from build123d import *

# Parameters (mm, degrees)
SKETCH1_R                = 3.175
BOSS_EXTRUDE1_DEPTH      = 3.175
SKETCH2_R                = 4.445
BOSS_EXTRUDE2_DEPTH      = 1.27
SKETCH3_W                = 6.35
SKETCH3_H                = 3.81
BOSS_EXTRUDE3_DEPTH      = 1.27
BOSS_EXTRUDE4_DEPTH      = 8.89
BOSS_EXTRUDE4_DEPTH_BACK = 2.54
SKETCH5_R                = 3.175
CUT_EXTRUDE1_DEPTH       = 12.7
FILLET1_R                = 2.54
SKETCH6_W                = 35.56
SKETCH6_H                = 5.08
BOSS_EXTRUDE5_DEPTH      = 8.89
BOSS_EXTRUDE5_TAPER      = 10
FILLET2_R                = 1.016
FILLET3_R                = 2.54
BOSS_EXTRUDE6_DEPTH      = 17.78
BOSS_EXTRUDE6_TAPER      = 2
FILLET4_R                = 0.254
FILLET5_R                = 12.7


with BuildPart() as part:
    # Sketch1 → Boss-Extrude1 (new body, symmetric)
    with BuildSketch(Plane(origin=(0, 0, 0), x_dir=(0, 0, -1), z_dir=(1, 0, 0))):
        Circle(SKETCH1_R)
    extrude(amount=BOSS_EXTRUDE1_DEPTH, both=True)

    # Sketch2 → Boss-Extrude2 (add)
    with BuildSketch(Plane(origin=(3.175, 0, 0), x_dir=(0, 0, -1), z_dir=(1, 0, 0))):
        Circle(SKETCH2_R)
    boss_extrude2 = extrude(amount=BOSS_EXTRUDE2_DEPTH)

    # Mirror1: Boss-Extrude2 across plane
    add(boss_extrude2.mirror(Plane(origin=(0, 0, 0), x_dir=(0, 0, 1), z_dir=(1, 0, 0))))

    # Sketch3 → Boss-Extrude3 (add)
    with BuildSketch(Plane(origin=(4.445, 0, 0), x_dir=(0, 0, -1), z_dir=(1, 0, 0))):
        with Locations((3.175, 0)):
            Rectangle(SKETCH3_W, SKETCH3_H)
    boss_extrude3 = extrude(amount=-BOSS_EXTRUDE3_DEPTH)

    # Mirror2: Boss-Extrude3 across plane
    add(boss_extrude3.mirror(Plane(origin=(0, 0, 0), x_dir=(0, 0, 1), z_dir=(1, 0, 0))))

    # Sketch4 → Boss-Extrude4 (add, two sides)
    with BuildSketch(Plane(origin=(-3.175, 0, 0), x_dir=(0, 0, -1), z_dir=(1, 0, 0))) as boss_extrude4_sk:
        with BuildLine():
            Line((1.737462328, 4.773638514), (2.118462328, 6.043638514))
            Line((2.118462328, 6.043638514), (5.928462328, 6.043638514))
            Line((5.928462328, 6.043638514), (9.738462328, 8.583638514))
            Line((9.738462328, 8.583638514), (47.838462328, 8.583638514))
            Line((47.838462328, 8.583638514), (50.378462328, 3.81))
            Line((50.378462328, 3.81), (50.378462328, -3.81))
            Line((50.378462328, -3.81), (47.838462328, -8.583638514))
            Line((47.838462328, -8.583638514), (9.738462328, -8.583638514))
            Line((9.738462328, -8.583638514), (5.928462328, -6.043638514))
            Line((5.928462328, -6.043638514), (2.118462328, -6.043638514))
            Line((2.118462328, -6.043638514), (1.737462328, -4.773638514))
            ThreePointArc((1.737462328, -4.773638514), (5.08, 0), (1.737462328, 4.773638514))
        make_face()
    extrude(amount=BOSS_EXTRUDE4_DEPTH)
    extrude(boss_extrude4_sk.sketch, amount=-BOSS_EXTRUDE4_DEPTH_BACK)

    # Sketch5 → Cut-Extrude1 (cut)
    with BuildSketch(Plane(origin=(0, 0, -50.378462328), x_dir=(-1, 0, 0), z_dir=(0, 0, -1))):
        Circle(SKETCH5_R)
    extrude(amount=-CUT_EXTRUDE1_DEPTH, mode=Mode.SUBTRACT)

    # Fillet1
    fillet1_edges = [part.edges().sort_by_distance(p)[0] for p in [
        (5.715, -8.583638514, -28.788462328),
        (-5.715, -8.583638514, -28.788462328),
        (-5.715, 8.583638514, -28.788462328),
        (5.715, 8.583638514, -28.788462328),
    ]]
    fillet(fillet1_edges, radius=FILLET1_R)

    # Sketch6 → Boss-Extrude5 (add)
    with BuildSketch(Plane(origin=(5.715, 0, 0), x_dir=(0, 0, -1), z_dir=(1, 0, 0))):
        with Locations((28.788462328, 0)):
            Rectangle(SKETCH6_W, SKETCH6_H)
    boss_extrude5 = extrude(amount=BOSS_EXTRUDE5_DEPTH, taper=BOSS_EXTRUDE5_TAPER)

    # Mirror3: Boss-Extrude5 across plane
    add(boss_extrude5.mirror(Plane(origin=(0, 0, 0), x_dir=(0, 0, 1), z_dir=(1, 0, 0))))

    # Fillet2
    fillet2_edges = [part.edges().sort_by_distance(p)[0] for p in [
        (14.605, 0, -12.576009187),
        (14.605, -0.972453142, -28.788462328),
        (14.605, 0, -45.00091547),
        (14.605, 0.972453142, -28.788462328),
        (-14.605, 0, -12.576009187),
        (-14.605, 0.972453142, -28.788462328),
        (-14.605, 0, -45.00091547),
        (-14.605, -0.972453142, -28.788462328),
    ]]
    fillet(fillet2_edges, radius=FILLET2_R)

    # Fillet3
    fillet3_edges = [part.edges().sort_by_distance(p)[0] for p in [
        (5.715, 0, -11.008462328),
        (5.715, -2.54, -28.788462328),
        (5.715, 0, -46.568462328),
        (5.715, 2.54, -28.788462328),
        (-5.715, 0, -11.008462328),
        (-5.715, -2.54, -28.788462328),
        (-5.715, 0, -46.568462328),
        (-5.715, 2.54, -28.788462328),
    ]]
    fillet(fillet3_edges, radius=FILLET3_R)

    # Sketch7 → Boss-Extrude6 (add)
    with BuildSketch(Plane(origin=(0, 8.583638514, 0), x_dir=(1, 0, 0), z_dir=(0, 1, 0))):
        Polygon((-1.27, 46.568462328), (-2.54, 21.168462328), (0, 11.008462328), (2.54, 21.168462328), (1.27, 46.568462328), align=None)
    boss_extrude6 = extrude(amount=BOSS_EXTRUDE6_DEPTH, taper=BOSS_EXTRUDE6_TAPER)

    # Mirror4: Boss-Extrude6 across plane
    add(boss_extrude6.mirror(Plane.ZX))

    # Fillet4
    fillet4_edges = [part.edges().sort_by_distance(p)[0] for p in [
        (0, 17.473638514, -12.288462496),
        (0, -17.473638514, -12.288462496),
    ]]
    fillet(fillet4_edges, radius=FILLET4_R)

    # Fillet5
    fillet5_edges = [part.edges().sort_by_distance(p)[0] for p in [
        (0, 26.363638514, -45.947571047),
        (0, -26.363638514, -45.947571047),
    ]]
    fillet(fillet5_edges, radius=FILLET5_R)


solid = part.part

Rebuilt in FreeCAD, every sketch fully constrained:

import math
import FreeCAD as App
import Part
import Sketcher
Q = App.Units.Quantity


def edges_at(feature, points):
    """Names of the edges that pass closest to the given points."""
    edges = feature.Shape.Edges
    near = lambda p: min(range(len(edges)), key=lambda i: edges[i].distToShape(Part.Vertex(*p))[0])
    return sorted({f"Edge{near(p) + 1}" for p in points})

doc = App.newDocument("Part")
params = doc.addObject("Spreadsheet::Sheet", "Params")
for row, (alias, value) in enumerate([
    ("sketch1_diameter", "0.25 in"),
    ("pad1_length", "0.25 in"),
    ("sketch2_diameter", "0.35 in"),
    ("pad2_length", "0.05 in"),
    ("sketch3_width", "0.15 in"),
    ("sketch3_height", "0.25 in"),
    ("pad3_length", "0.05 in"),
    ("sketch4_radius", "0.2 in"),
    ("sketch4_width", "0.3 in"),
    ("sketch4_height", "1.5 in"),
    ("sketch4_height2", "0.15 in"),
    ("pad4_length", "0.35 in"),
    ("pad4_length2", "0.1 in"),
    ("sketch5_diameter", "0.25 in"),
    ("pocket1_length", "0.5 in"),
    ("fillet_radius", "0.1 in"),
    ("sketch6_width", "0.2 in"),
    ("sketch6_height", "1.4 in"),
    ("pad5_length", "0.35 in"),
    ("pad5_taper", "-10 deg"),
    ("fillet2_radius", "0.04 in"),
    ("fillet3_radius", "0.1 in"),
    ("sketch7_width", "0.1 in"),
    ("pad6_length", "0.7 in"),
    ("pad6_taper", "-2 deg"),
    ("fillet4_radius", "0.01 in"),
    ("fillet5_radius", "0.5 in"),
], start=1):
    params.set(f"A{row}", alias)
    params.set(f"B{row}", "=" + value)
    params.setAlias(f"B{row}", alias)

body = doc.addObject("PartDesign::Body", "Body")

# Sketch on YZ plane
sketch1 = doc.addObject("Sketcher::SketchObject", "Sketch")
body.addObject(sketch1)
sketch1.AttachmentSupport = (doc.YZ_Plane, [""])
sketch1.MapMode = "FlatFace"
sketch1.addGeometry(Part.Circle(App.Vector(0, 0, 0), App.Vector(0, 0, 1), 3.2), False)
sketch1.addConstraint([
    Sketcher.Constraint("Coincident", 0, 3, -1, 1),
    Sketcher.Constraint("Diameter", 0, Q("0.25 in")),
])
sketch1.setExpression("Constraints[1]", "Params.sketch1_diameter")
pad1 = doc.addObject("PartDesign::Pad", "Pad")
body.addObject(pad1)
pad1.Profile = sketch1
pad1.setExpression("Length", "Params.pad1_length")
pad1.Midplane = True

# Sketch on YZ plane
sketch2 = doc.addObject("Sketcher::SketchObject", "Sketch001")
body.addObject(sketch2)
sketch2.AttachmentSupport = (doc.YZ_Plane, [""])
sketch2.MapMode = "FlatFace"
sketch2.AttachmentOffset = App.Placement(App.Vector(0, 0, 0.125 * 25.4), App.Rotation())
sketch2.addGeometry(Part.Circle(App.Vector(0, 0, 0), App.Vector(0, 0, 1), 4.4), False)
sketch2.addConstraint([
    Sketcher.Constraint("Coincident", 0, 3, -1, 1),
    Sketcher.Constraint("Diameter", 0, Q("0.35 in")),
])
sketch2.setExpression("Constraints[1]", "Params.sketch2_diameter")
pad2 = doc.addObject("PartDesign::Pad", "Pad001")
body.addObject(pad2)
pad2.Profile = sketch2
pad2.setExpression("Length", "Params.pad2_length")
doc.recompute()

mirrored = doc.addObject("PartDesign::Mirrored", "Mirrored")
body.addObject(mirrored)
mirrored.Originals = [pad2]
mirrored.MirrorPlane = (doc.YZ_Plane, [""])
body.Tip = mirrored

# Sketch on YZ plane
sketch3 = doc.addObject("Sketcher::SketchObject", "Sketch002")
body.addObject(sketch3)
sketch3.AttachmentSupport = (doc.YZ_Plane, [""])
sketch3.MapMode = "FlatFace"
sketch3.AttachmentOffset = App.Placement(App.Vector(0, 0, 0.175 * 25.4), App.Rotation())
sketch3.addGeometry([
    Part.LineSegment(App.Vector(1.9, 0, 0), App.Vector(-1.9, 0, 0)),
    Part.LineSegment(App.Vector(-1.9, 0, 0), App.Vector(-1.9, -6.3, 0)),
    Part.LineSegment(App.Vector(-1.9, -6.3, 0), App.Vector(1.9, -6.3, 0)),
    Part.LineSegment(App.Vector(1.9, -6.3, 0), App.Vector(1.9, 0, 0)),
], False)
sketch3.addConstraint([
    Sketcher.Constraint("Coincident", 0, 2, 1, 1),
    Sketcher.Constraint("Coincident", 1, 2, 2, 1),
    Sketcher.Constraint("Coincident", 2, 2, 3, 1),
    Sketcher.Constraint("Coincident", 3, 2, 0, 1),
    Sketcher.Constraint("Horizontal", 0),
    Sketcher.Constraint("Vertical", 1),
    Sketcher.Constraint("Horizontal", 2),
    Sketcher.Constraint("Vertical", 3),
    Sketcher.Constraint("Symmetric", 0, 2, 3, 2, -1, 1),
    Sketcher.Constraint("DistanceX", 0, 2, 0, 1, Q("0.15 in")),
    Sketcher.Constraint("DistanceY", 1, 2, 1, 1, Q("0.25 in")),
])
sketch3.setExpression("Constraints[9]", "Params.sketch3_width")
sketch3.setExpression("Constraints[10]", "Params.sketch3_height")
pad3 = doc.addObject("PartDesign::Pad", "Pad002")
body.addObject(pad3)
pad3.Profile = sketch3
pad3.setExpression("Length", "Params.pad3_length")
pad3.Reversed = True
doc.recompute()

mirrored2 = doc.addObject("PartDesign::Mirrored", "Mirrored001")
body.addObject(mirrored2)
mirrored2.Originals = [pad3]
mirrored2.MirrorPlane = (doc.YZ_Plane, [""])
body.Tip = mirrored2

# Sketch on YZ plane
sketch4 = doc.addObject("Sketcher::SketchObject", "Sketch003")
body.addObject(sketch4)
sketch4.AttachmentSupport = (doc.YZ_Plane, [""])
sketch4.MapMode = "FlatFace"
sketch4.AttachmentOffset = App.Placement(App.Vector(0, 0, -0.125 * 25.4), App.Rotation())
sketch4.addGeometry([
    Part.LineSegment(App.Vector(6, -2.1, 0), App.Vector(4.8, -1.7, 0)),  # 0
    Part.ArcOfCircle(Part.Circle(App.Vector(0, 0, 0), App.Vector(0, 0, 1), 5.1), math.radians(-160), math.radians(-20)),  # 1
    Part.LineSegment(App.Vector(-4.8, -1.7, 0), App.Vector(-6, -2.1, 0)),  # 2
    Part.LineSegment(App.Vector(-6, -2.1, 0), App.Vector(-6, -5.9, 0)),  # 3
    Part.LineSegment(App.Vector(-6, -5.9, 0), App.Vector(-8.6, -9.7, 0)),  # 4
    Part.LineSegment(App.Vector(-8.6, -9.7, 0), App.Vector(-8.6, -47.8, 0)),  # 5
    Part.LineSegment(App.Vector(-8.6, -47.8, 0), App.Vector(-3.8, -50.4, 0)),  # 6
    Part.LineSegment(App.Vector(-3.8, -50.4, 0), App.Vector(3.8, -50.4, 0)),  # 7
    Part.LineSegment(App.Vector(3.8, -50.4, 0), App.Vector(8.6, -47.8, 0)),  # 8
    Part.LineSegment(App.Vector(8.6, -47.8, 0), App.Vector(8.6, -9.7, 0)),  # 9
    Part.LineSegment(App.Vector(8.6, -9.7, 0), App.Vector(6, -5.9, 0)),  # 10
    Part.LineSegment(App.Vector(6, -5.9, 0), App.Vector(6, -2.1, 0)),  # 11
], False)
sketch4.addConstraint([
    Sketcher.Constraint("Coincident", 0, 2, 1, 2),
    Sketcher.Constraint("Coincident", 1, 1, 2, 1),
    Sketcher.Constraint("Coincident", 2, 2, 3, 1),
    Sketcher.Constraint("Coincident", 3, 2, 4, 1),
    Sketcher.Constraint("Coincident", 4, 2, 5, 1),
    Sketcher.Constraint("Coincident", 5, 2, 6, 1),
    Sketcher.Constraint("Coincident", 6, 2, 7, 1),
    Sketcher.Constraint("Coincident", 7, 2, 8, 1),
    Sketcher.Constraint("Coincident", 8, 2, 9, 1),
    Sketcher.Constraint("Coincident", 9, 2, 10, 1),
    Sketcher.Constraint("Coincident", 10, 2, 11, 1),
    Sketcher.Constraint("Coincident", 11, 2, 0, 1),
    Sketcher.Constraint("Vertical", 3),
    Sketcher.Constraint("Vertical", 5),
    Sketcher.Constraint("Horizontal", 7),
    Sketcher.Constraint("Vertical", 9),
    Sketcher.Constraint("Vertical", 11),
    Sketcher.Constraint("Coincident", 1, 3, -1, 1),
    Sketcher.Constraint("Symmetric", 5, 2, 8, 2, -2),
    Sketcher.Constraint("Symmetric", 3, 2, 10, 2, -2),
    Sketcher.Constraint("Horizontal", 0, 2, 1, 1),
    Sketcher.Constraint("Horizontal", 4, 2, 9, 2),
    Sketcher.Constraint("Horizontal", 2, 2, 11, 2),
    Sketcher.Constraint("Equal", 6, 8),
    Sketcher.Constraint("Radius", 1, Q("0.2 in")),
    Sketcher.Constraint("DistanceX", 7, 1, 7, 2, Q("0.3 in")),
    Sketcher.Constraint("DistanceY", 5, 2, 5, 1, Q("1.5 in")),
    Sketcher.Constraint("DistanceY", 3, 2, 3, 1, Q("0.15 in")),
    Sketcher.Constraint("DistanceX", 4, 2, 3, 2, Q("0.1 in")),
    Sketcher.Constraint("DistanceY", 4, 2, 2, 2, Q("0.3 in")),
    Sketcher.Constraint("DistanceY", 6, 2, 5, 2, Q("0.1 in")),
    Sketcher.Constraint("DistanceX", 2, 2, 1, 1, Q("0.05 in")),
    Sketcher.Constraint("DistanceY", 2, 2, 1, 1, Q("0.015 in")),
    Sketcher.Constraint("Distance", 6, Q("5.407331 mm")),
])
sketch4.setExpression("Constraints[24]", "Params.sketch4_radius")
sketch4.setExpression("Constraints[25]", "Params.sketch4_width")
sketch4.setExpression("Constraints[26]", "Params.sketch4_height")
sketch4.setExpression("Constraints[27]", "Params.sketch4_height2")
pad4 = doc.addObject("PartDesign::Pad", "Pad003")
body.addObject(pad4)
pad4.Profile = sketch4
pad4.Type = "TwoLengths"
pad4.setExpression("Length", "Params.pad4_length")
pad4.setExpression("Length2", "Params.pad4_length2")

# Sketch on XY plane
sketch5 = doc.addObject("Sketcher::SketchObject", "Sketch004")
body.addObject(sketch5)
sketch5.AttachmentSupport = (doc.XY_Plane, [""])
sketch5.MapMode = "FlatFace"
sketch5.AttachmentOffset = App.Placement(App.Vector(0, 0, -50.378462), App.Rotation())
sketch5.addGeometry(Part.Circle(App.Vector(0, 0, 0), App.Vector(0, 0, 1), 3.2), False)
sketch5.addConstraint([
    Sketcher.Constraint("Coincident", 0, 3, -1, 1),
    Sketcher.Constraint("Diameter", 0, Q("0.25 in")),
])
sketch5.setExpression("Constraints[1]", "Params.sketch5_diameter")
pocket1 = doc.addObject("PartDesign::Pocket", "Pocket")
body.addObject(pocket1)
pocket1.Profile = sketch5
pocket1.setExpression("Length", "Params.pocket1_length")
pocket1.Reversed = True
doc.recompute()

fillet = doc.addObject("PartDesign::Fillet", "Fillet")
body.addObject(fillet)
fillet.Base = (pocket1, edges_at(pocket1, [
    (5.715, -8.584, -28.788),
    (-5.715, -8.584, -28.788),
    (-5.715, 8.584, -28.788),
    (5.715, 8.584, -28.788),
]))
fillet.setExpression("Radius", "Params.fillet_radius")

# Sketch on YZ plane
sketch6 = doc.addObject("Sketcher::SketchObject", "Sketch005")
body.addObject(sketch6)
sketch6.AttachmentSupport = (doc.YZ_Plane, [""])
sketch6.MapMode = "FlatFace"
sketch6.AttachmentOffset = App.Placement(App.Vector(0, 0, 0.225 * 25.4), App.Rotation())
sketch6.addGeometry([
    Part.LineSegment(App.Vector(3, -11, 0), App.Vector(-3, -11, 0)),
    Part.LineSegment(App.Vector(-3, -11, 0), App.Vector(-3, -47, 0)),
    Part.LineSegment(App.Vector(-3, -47, 0), App.Vector(3, -47, 0)),
    Part.LineSegment(App.Vector(3, -47, 0), App.Vector(3, -11, 0)),
], False)
sketch6.addConstraint([
    Sketcher.Constraint("Coincident", 0, 2, 1, 1),
    Sketcher.Constraint("Coincident", 1, 2, 2, 1),
    Sketcher.Constraint("Coincident", 2, 2, 3, 1),
    Sketcher.Constraint("Coincident", 3, 2, 0, 1),
    Sketcher.Constraint("Horizontal", 0),
    Sketcher.Constraint("Vertical", 1),
    Sketcher.Constraint("Horizontal", 2),
    Sketcher.Constraint("Vertical", 3),
    Sketcher.Constraint("DistanceX", 0, 2, 0, 1, Q("0.2 in")),
    Sketcher.Constraint("DistanceY", 1, 2, 1, 1, Q("1.4 in")),
    Sketcher.Constraint("DistanceX", 0, 2, -1, 1, Q("0.1 in")),
    Sketcher.Constraint("DistanceY", 0, 2, -1, 1, Q("11.008462 mm")),
])
sketch6.setExpression("Constraints[8]", "Params.sketch6_width")
sketch6.setExpression("Constraints[9]", "Params.sketch6_height")
pad5 = doc.addObject("PartDesign::Pad", "Pad004")
body.addObject(pad5)
pad5.Profile = sketch6
pad5.setExpression("Length", "Params.pad5_length")
pad5.setExpression("TaperAngle", "Params.pad5_taper")
doc.recompute()

mirrored3 = doc.addObject("PartDesign::Mirrored", "Mirrored002")
body.addObject(mirrored3)
mirrored3.Originals = [pad5]
mirrored3.MirrorPlane = (doc.YZ_Plane, [""])
body.Tip = mirrored3
doc.recompute()

fillet2 = doc.addObject("PartDesign::Fillet", "Fillet001")
body.addObject(fillet2)
fillet2.Base = (mirrored3, edges_at(mirrored3, [
    (14.605, 0, -12.576),
    (14.605, -0.972, -28.788),
    (14.605, 0, -45.001),
    (14.605, 0.972, -28.788),
    (-14.605, 0, -12.576),
    (-14.605, 0.972, -28.788),
    (-14.605, 0, -45.001),
    (-14.605, -0.972, -28.788),
]))
fillet2.setExpression("Radius", "Params.fillet2_radius")
doc.recompute()

fillet3 = doc.addObject("PartDesign::Fillet", "Fillet002")
body.addObject(fillet3)
fillet3.Base = (fillet2, edges_at(fillet2, [
    (5.715, 0, -11.008),
    (5.715, -2.54, -28.788),
    (5.715, 0, -46.568),
    (5.715, 2.54, -28.788),
    (-5.715, 0, -11.008),
    (-5.715, -2.54, -28.788),
    (-5.715, 0, -46.568),
    (-5.715, 2.54, -28.788),
]))
fillet3.setExpression("Radius", "Params.fillet3_radius")

# Sketch on XZ plane
sketch7 = doc.addObject("Sketcher::SketchObject", "Sketch006")
body.addObject(sketch7)
sketch7.AttachmentSupport = (doc.XZ_Plane, [""])
sketch7.MapMode = "FlatFace"
sketch7.AttachmentOffset = App.Placement(App.Vector(0, 0, -8.583639), App.Rotation())
sketch7.addGeometry([
    Part.LineSegment(App.Vector(-1.3, -46.6, 0), App.Vector(-2.5, -21.2, 0)),  # 0
    Part.LineSegment(App.Vector(-2.5, -21.2, 0), App.Vector(0, -11, 0)),  # 1
    Part.LineSegment(App.Vector(0, -11, 0), App.Vector(2.5, -21.2, 0)),  # 2
    Part.LineSegment(App.Vector(2.5, -21.2, 0), App.Vector(1.3, -46.6, 0)),  # 3
    Part.LineSegment(App.Vector(1.3, -46.6, 0), App.Vector(-1.3, -46.6, 0)),  # 4
], False)
sketch7.addConstraint([
    Sketcher.Constraint("Coincident", 0, 2, 1, 1),
    Sketcher.Constraint("Coincident", 1, 2, 2, 1),
    Sketcher.Constraint("Coincident", 2, 2, 3, 1),
    Sketcher.Constraint("Coincident", 3, 2, 4, 1),
    Sketcher.Constraint("Coincident", 4, 2, 0, 1),
    Sketcher.Constraint("Horizontal", 4),
    Sketcher.Constraint("Symmetric", 0, 2, 2, 2, -2),
    Sketcher.Constraint("PointOnObject", 1, 2, -2),
    Sketcher.Constraint("Equal", 0, 3),
    Sketcher.Constraint("DistanceX", 4, 2, 4, 1, Q("0.1 in")),
    Sketcher.Constraint("DistanceY", 3, 2, 2, 2, Q("1 in")),
    Sketcher.Constraint("DistanceX", 0, 2, -1, 1, Q("0.1 in")),
    Sketcher.Constraint("DistanceY", 0, 2, 1, 2, Q("0.4 in")),
    Sketcher.Constraint("DistanceY", 0, 2, -1, 1, Q("21.168462 mm")),
])
sketch7.setExpression("Constraints[9]", "Params.sketch7_width")
pad6 = doc.addObject("PartDesign::Pad", "Pad005")
body.addObject(pad6)
pad6.Profile = sketch7
pad6.setExpression("Length", "Params.pad6_length")
pad6.Reversed = True
pad6.setExpression("TaperAngle", "Params.pad6_taper")
doc.recompute()

mirrored4 = doc.addObject("PartDesign::Mirrored", "Mirrored003")
body.addObject(mirrored4)
mirrored4.Originals = [pad6]
mirrored4.MirrorPlane = (doc.XZ_Plane, [""])
body.Tip = mirrored4
doc.recompute()

fillet4 = doc.addObject("PartDesign::Fillet", "Fillet003")
body.addObject(fillet4)
fillet4.Base = (mirrored4, edges_at(mirrored4, [(0, 17.474, -12.288), (0, -17.474, -12.288)]))
fillet4.setExpression("Radius", "Params.fillet4_radius")
doc.recompute()

fillet5 = doc.addObject("PartDesign::Fillet", "Fillet004")
body.addObject(fillet5)
fillet5.Base = (fillet4, edges_at(fillet4, [(0, 26.364, -45.948), (0, -26.364, -45.948)]))
fillet5.setExpression("Radius", "Params.fillet5_radius")

doc.recompute()
